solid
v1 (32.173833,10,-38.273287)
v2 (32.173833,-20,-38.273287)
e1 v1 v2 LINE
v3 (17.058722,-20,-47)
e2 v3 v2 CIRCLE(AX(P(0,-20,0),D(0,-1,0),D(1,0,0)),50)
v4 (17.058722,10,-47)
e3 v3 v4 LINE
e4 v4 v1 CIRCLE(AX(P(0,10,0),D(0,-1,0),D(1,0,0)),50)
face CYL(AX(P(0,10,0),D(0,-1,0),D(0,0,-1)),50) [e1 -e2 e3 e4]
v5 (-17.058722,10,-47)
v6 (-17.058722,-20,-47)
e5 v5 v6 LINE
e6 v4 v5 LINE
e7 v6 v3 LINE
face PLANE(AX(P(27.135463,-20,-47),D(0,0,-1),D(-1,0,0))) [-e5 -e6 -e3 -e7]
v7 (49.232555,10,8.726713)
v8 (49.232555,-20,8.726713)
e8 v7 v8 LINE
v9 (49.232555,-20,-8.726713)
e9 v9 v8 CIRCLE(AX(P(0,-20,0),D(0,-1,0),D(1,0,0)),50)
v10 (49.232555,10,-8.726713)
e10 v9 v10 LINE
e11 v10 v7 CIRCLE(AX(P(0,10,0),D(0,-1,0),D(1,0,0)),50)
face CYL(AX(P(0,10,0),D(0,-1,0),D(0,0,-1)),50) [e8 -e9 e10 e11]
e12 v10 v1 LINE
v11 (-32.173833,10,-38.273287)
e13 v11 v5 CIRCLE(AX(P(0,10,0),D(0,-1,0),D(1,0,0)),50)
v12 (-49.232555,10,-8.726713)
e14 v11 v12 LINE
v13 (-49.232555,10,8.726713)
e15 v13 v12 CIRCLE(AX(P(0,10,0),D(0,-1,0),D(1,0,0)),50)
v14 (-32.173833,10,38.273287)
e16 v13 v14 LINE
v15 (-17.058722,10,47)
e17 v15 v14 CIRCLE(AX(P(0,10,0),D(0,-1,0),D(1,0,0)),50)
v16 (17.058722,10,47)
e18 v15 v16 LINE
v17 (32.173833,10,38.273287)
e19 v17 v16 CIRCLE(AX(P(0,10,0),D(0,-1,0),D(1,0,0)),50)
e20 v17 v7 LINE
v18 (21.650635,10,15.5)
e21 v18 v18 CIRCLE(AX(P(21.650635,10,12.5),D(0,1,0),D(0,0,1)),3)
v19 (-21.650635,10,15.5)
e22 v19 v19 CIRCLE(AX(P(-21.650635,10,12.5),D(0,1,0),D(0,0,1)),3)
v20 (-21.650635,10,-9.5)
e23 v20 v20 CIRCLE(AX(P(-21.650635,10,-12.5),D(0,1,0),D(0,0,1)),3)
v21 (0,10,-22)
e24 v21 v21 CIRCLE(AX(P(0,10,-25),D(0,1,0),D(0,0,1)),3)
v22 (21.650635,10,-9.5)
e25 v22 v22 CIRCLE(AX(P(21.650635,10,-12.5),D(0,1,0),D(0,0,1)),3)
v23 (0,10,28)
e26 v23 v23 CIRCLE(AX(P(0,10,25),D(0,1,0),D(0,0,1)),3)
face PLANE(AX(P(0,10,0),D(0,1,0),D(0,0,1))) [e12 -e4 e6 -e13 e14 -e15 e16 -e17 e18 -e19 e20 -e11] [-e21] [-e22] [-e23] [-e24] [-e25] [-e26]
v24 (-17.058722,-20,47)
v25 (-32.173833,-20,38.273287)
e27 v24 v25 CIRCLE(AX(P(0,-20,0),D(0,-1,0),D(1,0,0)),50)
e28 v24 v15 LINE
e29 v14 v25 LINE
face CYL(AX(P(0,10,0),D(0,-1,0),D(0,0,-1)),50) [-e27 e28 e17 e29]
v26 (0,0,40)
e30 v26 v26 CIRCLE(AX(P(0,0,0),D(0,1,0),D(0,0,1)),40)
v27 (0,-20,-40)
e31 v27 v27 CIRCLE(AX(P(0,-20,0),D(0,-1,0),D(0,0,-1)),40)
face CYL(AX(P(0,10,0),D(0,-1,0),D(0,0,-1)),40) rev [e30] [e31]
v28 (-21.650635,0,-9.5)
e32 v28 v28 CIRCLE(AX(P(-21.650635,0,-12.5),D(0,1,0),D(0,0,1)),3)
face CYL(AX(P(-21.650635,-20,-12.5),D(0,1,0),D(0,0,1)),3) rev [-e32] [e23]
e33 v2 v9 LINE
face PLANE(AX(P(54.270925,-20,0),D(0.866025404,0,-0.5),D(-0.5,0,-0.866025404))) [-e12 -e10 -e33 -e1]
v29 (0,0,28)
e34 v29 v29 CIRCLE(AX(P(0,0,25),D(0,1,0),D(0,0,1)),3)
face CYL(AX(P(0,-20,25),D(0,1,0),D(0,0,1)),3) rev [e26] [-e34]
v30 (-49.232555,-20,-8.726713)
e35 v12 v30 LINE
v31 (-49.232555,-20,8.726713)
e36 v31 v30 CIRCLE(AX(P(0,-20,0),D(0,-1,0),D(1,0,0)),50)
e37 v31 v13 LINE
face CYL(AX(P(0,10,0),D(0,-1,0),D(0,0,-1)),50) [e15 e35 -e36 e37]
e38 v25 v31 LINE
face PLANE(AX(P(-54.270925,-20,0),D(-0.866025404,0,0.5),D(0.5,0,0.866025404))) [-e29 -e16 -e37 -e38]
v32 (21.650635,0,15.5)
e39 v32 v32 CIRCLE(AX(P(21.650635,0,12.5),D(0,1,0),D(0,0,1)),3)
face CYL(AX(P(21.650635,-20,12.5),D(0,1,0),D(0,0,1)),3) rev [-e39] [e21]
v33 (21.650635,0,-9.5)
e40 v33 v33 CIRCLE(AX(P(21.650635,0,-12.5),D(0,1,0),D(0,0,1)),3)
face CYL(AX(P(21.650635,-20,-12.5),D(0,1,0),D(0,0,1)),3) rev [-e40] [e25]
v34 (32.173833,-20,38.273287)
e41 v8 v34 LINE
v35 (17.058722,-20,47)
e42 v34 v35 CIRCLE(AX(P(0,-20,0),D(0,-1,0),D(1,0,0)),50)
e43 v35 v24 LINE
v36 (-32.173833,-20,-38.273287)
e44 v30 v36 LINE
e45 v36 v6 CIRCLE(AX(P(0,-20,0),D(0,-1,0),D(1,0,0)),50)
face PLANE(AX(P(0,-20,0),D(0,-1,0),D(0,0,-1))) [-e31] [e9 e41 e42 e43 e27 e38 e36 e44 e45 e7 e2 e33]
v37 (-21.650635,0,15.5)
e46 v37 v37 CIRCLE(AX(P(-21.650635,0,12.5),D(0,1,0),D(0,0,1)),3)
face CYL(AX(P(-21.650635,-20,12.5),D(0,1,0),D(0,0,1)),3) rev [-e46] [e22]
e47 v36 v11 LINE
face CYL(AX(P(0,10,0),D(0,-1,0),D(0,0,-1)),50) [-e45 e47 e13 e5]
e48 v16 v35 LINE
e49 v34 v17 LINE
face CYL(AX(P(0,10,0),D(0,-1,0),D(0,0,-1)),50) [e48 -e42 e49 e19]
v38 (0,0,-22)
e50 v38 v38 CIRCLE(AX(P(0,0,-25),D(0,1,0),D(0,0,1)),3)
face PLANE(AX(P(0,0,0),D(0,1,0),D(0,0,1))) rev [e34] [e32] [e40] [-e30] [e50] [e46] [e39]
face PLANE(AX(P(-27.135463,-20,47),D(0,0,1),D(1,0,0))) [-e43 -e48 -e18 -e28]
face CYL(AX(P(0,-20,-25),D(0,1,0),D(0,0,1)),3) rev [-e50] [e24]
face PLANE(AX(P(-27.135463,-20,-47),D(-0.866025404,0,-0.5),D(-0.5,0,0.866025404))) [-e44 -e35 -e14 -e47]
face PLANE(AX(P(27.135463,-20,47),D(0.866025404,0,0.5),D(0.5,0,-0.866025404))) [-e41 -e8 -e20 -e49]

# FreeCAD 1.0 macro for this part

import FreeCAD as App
import Part
import Sketcher
from FreeCAD import Vector
Q = App.Units.Quantity


def add_polygon(sketch, points):
    """Adds a closed chain of lines whose ends are joined by coincident constraints."""
    first, n = sketch.GeometryCount, len(points)
    for a, b in zip(points, points[1:] + points[:1]):
        sketch.addGeometry(Part.LineSegment(App.Vector(*a, 0), App.Vector(*b, 0)), False)
    for i in range(n):
        sketch.addConstraint(Sketcher.Constraint("Coincident", first + i, 2, first + (i + 1) % n, 1))

doc = App.newDocument("Part")
body = doc.addObject("PartDesign::Body", "Body")

# Sketch on XZ plane
sketch1 = doc.addObject("Sketcher::SketchObject", "Sketch")
body.addObject(sketch1)
sketch1.AttachmentSupport = (doc.XZ_Plane, [""])
sketch1.MapMode = "FlatFace"
sketch1.addGeometry(Part.Circle(Vector(0, 0, 0), Vector(0, 0, 1), 40), False)
sketch1.addConstraint([
    Sketcher.Constraint("Coincident", 0, 3, -1, 1),
    Sketcher.Constraint("Diameter", 0, 80.0),
])
pad1 = doc.addObject("PartDesign::Pad", "Pad")
body.addObject(pad1)
pad1.Profile = sketch1
pad1.Length = 10
pad1.Reversed = True

# Sketch on XZ plane
sketch2 = doc.addObject("Sketcher::SketchObject", "Sketch001")
body.addObject(sketch2)
sketch2.AttachmentSupport = (doc.XZ_Plane, [""])
sketch2.MapMode = "FlatFace"
sketch2.addGeometry([
    Part.Circle(Vector(0, 0, 0), Vector(0, 0, 1), 50),
    Part.Circle(Vector(0, 0, 0), Vector(0, 0, 1), 40),
], False)
sketch2.addConstraint([
    Sketcher.Constraint("Coincident", 0, 3, -1, 1),
    Sketcher.Constraint("Coincident", 1, 3, -1, 1),
    Sketcher.Constraint("Diameter", 0, 100.0),
    Sketcher.Constraint("Diameter", 1, 80.0),
])
pad2 = doc.addObject("PartDesign::Pad", "Pad001")
body.addObject(pad2)
pad2.Profile = sketch2
pad2.Type = "TwoLengths"
pad2.Length = 20
pad2.Length2 = 10

# Sketch on XZ plane
sketch3 = doc.addObject("Sketcher::SketchObject", "Sketch002")
body.addObject(sketch3)
sketch3.AttachmentSupport = (doc.XZ_Plane, [""])
sketch3.MapMode = "FlatFace"
sketch3.AttachmentOffset = App.Placement(Vector(0, 0, -10), App.Rotation())
add_polygon(sketch3, [(-65.457, -65.457), (-65.457, 65.457), (65.457, 65.457), (65.457, -65.457)])  # lines 0-3
add_polygon(sketch3, [(27.135463, -47), (54.270925, 0), (27.135463, 47), (-27.135463, 47), (-54.270925, 0), (-27.135463, -47)])  # lines 4-9
sketch3.addConstraint([
    Sketcher.Constraint("Vertical", 0),
    Sketcher.Constraint("Horizontal", 1),
    Sketcher.Constraint("Vertical", 2),
    Sketcher.Constraint("Horizontal", 3),
    Sketcher.Constraint("Horizontal", 6),
    Sketcher.Constraint("Horizontal", 9),
    Sketcher.Constraint("Symmetric", 0, 2, 2, 2, -1, 1),
    Sketcher.Constraint("Symmetric", 4, 2, 7, 2, -1, 1),
    Sketcher.Constraint("Symmetric", 5, 2, 8, 2, -1, 1),
    Sketcher.Constraint("PointOnObject", 4, 2, -1),
    Sketcher.Constraint("Parallel", 4, 7),
    Sketcher.Constraint("Vertical", 6, 2, 8, 2),
    Sketcher.Constraint("Equal", 3, 0),
    Sketcher.Constraint("Angle", 4, Q("60 deg")),
    Sketcher.Constraint("DistanceY", -1, 1, 5, 2, 47.0),
    Sketcher.Constraint("DistanceX", 1, 1, 1, 2, 130.914),
    Sketcher.Constraint("DistanceX", 6, 2, 6, 1, 54.270925),
])
pocket1 = doc.addObject("PartDesign::Pocket", "Pocket")
body.addObject(pocket1)
pocket1.Profile = sketch3
pocket1.Type = "ThroughAll"
pocket1.Reversed = True

# Sketch on XZ plane
sketch4 = doc.addObject("Sketcher::SketchObject", "Sketch003")
body.addObject(sketch4)
sketch4.AttachmentSupport = (doc.XZ_Plane, [""])
sketch4.MapMode = "FlatFace"
sketch4.AttachmentOffset = App.Placement(Vector(0, 0, -10), App.Rotation())
sketch4.addGeometry([
    Part.Circle(Vector(0, -25, 0), Vector(0, 0, 1), 3),  # 0
    Part.Circle(Vector(21.650635, -12.5, 0), Vector(0, 0, 1), 3),  # 1
    Part.Circle(Vector(21.650635, 12.5, 0), Vector(0, 0, 1), 3),  # 2
    Part.Circle(Vector(0, 25, 0), Vector(0, 0, 1), 3),  # 3
    Part.Circle(Vector(-21.650635, 12.5, 0), Vector(0, 0, 1), 3),  # 4
    Part.Circle(Vector(-21.650635, -12.5, 0), Vector(0, 0, 1), 3),  # 5
], False)
sketch4.addConstraint([
    Sketcher.Constraint("Equal", 0, 1),
    Sketcher.Constraint("Equal", 1, 2),
    Sketcher.Constraint("Equal", 2, 3),
    Sketcher.Constraint("Equal", 3, 4),
    Sketcher.Constraint("Equal", 4, 5),
    Sketcher.Constraint("Symmetric", 0, 3, 3, 3, -1, 1),
    Sketcher.Constraint("Symmetric", 1, 3, 4, 3, -1, 1),
    Sketcher.Constraint("Symmetric", 2, 3, 5, 3, -1, 1),
    Sketcher.Constraint("Symmetric", 2, 3, 4, 3, -2),
    Sketcher.Constraint("PointOnObject", 0, 3, -2),
    Sketcher.Constraint("Diameter", 0, 6.0),
    Sketcher.Constraint("DistanceY", 0, 3, -1, 1, 25.0),
    Sketcher.Constraint("DistanceY", 1, 3, 2, 3, 25.0),
    Sketcher.Constraint("DistanceX", 4, 3, 2, 3, 43.30127),
])
pocket2 = doc.addObject("PartDesign::Pocket", "Pocket001")
body.addObject(pocket2)
pocket2.Profile = sketch4
pocket2.Type = "ThroughAll"
pocket2.Reversed = True

doc.recompute()
